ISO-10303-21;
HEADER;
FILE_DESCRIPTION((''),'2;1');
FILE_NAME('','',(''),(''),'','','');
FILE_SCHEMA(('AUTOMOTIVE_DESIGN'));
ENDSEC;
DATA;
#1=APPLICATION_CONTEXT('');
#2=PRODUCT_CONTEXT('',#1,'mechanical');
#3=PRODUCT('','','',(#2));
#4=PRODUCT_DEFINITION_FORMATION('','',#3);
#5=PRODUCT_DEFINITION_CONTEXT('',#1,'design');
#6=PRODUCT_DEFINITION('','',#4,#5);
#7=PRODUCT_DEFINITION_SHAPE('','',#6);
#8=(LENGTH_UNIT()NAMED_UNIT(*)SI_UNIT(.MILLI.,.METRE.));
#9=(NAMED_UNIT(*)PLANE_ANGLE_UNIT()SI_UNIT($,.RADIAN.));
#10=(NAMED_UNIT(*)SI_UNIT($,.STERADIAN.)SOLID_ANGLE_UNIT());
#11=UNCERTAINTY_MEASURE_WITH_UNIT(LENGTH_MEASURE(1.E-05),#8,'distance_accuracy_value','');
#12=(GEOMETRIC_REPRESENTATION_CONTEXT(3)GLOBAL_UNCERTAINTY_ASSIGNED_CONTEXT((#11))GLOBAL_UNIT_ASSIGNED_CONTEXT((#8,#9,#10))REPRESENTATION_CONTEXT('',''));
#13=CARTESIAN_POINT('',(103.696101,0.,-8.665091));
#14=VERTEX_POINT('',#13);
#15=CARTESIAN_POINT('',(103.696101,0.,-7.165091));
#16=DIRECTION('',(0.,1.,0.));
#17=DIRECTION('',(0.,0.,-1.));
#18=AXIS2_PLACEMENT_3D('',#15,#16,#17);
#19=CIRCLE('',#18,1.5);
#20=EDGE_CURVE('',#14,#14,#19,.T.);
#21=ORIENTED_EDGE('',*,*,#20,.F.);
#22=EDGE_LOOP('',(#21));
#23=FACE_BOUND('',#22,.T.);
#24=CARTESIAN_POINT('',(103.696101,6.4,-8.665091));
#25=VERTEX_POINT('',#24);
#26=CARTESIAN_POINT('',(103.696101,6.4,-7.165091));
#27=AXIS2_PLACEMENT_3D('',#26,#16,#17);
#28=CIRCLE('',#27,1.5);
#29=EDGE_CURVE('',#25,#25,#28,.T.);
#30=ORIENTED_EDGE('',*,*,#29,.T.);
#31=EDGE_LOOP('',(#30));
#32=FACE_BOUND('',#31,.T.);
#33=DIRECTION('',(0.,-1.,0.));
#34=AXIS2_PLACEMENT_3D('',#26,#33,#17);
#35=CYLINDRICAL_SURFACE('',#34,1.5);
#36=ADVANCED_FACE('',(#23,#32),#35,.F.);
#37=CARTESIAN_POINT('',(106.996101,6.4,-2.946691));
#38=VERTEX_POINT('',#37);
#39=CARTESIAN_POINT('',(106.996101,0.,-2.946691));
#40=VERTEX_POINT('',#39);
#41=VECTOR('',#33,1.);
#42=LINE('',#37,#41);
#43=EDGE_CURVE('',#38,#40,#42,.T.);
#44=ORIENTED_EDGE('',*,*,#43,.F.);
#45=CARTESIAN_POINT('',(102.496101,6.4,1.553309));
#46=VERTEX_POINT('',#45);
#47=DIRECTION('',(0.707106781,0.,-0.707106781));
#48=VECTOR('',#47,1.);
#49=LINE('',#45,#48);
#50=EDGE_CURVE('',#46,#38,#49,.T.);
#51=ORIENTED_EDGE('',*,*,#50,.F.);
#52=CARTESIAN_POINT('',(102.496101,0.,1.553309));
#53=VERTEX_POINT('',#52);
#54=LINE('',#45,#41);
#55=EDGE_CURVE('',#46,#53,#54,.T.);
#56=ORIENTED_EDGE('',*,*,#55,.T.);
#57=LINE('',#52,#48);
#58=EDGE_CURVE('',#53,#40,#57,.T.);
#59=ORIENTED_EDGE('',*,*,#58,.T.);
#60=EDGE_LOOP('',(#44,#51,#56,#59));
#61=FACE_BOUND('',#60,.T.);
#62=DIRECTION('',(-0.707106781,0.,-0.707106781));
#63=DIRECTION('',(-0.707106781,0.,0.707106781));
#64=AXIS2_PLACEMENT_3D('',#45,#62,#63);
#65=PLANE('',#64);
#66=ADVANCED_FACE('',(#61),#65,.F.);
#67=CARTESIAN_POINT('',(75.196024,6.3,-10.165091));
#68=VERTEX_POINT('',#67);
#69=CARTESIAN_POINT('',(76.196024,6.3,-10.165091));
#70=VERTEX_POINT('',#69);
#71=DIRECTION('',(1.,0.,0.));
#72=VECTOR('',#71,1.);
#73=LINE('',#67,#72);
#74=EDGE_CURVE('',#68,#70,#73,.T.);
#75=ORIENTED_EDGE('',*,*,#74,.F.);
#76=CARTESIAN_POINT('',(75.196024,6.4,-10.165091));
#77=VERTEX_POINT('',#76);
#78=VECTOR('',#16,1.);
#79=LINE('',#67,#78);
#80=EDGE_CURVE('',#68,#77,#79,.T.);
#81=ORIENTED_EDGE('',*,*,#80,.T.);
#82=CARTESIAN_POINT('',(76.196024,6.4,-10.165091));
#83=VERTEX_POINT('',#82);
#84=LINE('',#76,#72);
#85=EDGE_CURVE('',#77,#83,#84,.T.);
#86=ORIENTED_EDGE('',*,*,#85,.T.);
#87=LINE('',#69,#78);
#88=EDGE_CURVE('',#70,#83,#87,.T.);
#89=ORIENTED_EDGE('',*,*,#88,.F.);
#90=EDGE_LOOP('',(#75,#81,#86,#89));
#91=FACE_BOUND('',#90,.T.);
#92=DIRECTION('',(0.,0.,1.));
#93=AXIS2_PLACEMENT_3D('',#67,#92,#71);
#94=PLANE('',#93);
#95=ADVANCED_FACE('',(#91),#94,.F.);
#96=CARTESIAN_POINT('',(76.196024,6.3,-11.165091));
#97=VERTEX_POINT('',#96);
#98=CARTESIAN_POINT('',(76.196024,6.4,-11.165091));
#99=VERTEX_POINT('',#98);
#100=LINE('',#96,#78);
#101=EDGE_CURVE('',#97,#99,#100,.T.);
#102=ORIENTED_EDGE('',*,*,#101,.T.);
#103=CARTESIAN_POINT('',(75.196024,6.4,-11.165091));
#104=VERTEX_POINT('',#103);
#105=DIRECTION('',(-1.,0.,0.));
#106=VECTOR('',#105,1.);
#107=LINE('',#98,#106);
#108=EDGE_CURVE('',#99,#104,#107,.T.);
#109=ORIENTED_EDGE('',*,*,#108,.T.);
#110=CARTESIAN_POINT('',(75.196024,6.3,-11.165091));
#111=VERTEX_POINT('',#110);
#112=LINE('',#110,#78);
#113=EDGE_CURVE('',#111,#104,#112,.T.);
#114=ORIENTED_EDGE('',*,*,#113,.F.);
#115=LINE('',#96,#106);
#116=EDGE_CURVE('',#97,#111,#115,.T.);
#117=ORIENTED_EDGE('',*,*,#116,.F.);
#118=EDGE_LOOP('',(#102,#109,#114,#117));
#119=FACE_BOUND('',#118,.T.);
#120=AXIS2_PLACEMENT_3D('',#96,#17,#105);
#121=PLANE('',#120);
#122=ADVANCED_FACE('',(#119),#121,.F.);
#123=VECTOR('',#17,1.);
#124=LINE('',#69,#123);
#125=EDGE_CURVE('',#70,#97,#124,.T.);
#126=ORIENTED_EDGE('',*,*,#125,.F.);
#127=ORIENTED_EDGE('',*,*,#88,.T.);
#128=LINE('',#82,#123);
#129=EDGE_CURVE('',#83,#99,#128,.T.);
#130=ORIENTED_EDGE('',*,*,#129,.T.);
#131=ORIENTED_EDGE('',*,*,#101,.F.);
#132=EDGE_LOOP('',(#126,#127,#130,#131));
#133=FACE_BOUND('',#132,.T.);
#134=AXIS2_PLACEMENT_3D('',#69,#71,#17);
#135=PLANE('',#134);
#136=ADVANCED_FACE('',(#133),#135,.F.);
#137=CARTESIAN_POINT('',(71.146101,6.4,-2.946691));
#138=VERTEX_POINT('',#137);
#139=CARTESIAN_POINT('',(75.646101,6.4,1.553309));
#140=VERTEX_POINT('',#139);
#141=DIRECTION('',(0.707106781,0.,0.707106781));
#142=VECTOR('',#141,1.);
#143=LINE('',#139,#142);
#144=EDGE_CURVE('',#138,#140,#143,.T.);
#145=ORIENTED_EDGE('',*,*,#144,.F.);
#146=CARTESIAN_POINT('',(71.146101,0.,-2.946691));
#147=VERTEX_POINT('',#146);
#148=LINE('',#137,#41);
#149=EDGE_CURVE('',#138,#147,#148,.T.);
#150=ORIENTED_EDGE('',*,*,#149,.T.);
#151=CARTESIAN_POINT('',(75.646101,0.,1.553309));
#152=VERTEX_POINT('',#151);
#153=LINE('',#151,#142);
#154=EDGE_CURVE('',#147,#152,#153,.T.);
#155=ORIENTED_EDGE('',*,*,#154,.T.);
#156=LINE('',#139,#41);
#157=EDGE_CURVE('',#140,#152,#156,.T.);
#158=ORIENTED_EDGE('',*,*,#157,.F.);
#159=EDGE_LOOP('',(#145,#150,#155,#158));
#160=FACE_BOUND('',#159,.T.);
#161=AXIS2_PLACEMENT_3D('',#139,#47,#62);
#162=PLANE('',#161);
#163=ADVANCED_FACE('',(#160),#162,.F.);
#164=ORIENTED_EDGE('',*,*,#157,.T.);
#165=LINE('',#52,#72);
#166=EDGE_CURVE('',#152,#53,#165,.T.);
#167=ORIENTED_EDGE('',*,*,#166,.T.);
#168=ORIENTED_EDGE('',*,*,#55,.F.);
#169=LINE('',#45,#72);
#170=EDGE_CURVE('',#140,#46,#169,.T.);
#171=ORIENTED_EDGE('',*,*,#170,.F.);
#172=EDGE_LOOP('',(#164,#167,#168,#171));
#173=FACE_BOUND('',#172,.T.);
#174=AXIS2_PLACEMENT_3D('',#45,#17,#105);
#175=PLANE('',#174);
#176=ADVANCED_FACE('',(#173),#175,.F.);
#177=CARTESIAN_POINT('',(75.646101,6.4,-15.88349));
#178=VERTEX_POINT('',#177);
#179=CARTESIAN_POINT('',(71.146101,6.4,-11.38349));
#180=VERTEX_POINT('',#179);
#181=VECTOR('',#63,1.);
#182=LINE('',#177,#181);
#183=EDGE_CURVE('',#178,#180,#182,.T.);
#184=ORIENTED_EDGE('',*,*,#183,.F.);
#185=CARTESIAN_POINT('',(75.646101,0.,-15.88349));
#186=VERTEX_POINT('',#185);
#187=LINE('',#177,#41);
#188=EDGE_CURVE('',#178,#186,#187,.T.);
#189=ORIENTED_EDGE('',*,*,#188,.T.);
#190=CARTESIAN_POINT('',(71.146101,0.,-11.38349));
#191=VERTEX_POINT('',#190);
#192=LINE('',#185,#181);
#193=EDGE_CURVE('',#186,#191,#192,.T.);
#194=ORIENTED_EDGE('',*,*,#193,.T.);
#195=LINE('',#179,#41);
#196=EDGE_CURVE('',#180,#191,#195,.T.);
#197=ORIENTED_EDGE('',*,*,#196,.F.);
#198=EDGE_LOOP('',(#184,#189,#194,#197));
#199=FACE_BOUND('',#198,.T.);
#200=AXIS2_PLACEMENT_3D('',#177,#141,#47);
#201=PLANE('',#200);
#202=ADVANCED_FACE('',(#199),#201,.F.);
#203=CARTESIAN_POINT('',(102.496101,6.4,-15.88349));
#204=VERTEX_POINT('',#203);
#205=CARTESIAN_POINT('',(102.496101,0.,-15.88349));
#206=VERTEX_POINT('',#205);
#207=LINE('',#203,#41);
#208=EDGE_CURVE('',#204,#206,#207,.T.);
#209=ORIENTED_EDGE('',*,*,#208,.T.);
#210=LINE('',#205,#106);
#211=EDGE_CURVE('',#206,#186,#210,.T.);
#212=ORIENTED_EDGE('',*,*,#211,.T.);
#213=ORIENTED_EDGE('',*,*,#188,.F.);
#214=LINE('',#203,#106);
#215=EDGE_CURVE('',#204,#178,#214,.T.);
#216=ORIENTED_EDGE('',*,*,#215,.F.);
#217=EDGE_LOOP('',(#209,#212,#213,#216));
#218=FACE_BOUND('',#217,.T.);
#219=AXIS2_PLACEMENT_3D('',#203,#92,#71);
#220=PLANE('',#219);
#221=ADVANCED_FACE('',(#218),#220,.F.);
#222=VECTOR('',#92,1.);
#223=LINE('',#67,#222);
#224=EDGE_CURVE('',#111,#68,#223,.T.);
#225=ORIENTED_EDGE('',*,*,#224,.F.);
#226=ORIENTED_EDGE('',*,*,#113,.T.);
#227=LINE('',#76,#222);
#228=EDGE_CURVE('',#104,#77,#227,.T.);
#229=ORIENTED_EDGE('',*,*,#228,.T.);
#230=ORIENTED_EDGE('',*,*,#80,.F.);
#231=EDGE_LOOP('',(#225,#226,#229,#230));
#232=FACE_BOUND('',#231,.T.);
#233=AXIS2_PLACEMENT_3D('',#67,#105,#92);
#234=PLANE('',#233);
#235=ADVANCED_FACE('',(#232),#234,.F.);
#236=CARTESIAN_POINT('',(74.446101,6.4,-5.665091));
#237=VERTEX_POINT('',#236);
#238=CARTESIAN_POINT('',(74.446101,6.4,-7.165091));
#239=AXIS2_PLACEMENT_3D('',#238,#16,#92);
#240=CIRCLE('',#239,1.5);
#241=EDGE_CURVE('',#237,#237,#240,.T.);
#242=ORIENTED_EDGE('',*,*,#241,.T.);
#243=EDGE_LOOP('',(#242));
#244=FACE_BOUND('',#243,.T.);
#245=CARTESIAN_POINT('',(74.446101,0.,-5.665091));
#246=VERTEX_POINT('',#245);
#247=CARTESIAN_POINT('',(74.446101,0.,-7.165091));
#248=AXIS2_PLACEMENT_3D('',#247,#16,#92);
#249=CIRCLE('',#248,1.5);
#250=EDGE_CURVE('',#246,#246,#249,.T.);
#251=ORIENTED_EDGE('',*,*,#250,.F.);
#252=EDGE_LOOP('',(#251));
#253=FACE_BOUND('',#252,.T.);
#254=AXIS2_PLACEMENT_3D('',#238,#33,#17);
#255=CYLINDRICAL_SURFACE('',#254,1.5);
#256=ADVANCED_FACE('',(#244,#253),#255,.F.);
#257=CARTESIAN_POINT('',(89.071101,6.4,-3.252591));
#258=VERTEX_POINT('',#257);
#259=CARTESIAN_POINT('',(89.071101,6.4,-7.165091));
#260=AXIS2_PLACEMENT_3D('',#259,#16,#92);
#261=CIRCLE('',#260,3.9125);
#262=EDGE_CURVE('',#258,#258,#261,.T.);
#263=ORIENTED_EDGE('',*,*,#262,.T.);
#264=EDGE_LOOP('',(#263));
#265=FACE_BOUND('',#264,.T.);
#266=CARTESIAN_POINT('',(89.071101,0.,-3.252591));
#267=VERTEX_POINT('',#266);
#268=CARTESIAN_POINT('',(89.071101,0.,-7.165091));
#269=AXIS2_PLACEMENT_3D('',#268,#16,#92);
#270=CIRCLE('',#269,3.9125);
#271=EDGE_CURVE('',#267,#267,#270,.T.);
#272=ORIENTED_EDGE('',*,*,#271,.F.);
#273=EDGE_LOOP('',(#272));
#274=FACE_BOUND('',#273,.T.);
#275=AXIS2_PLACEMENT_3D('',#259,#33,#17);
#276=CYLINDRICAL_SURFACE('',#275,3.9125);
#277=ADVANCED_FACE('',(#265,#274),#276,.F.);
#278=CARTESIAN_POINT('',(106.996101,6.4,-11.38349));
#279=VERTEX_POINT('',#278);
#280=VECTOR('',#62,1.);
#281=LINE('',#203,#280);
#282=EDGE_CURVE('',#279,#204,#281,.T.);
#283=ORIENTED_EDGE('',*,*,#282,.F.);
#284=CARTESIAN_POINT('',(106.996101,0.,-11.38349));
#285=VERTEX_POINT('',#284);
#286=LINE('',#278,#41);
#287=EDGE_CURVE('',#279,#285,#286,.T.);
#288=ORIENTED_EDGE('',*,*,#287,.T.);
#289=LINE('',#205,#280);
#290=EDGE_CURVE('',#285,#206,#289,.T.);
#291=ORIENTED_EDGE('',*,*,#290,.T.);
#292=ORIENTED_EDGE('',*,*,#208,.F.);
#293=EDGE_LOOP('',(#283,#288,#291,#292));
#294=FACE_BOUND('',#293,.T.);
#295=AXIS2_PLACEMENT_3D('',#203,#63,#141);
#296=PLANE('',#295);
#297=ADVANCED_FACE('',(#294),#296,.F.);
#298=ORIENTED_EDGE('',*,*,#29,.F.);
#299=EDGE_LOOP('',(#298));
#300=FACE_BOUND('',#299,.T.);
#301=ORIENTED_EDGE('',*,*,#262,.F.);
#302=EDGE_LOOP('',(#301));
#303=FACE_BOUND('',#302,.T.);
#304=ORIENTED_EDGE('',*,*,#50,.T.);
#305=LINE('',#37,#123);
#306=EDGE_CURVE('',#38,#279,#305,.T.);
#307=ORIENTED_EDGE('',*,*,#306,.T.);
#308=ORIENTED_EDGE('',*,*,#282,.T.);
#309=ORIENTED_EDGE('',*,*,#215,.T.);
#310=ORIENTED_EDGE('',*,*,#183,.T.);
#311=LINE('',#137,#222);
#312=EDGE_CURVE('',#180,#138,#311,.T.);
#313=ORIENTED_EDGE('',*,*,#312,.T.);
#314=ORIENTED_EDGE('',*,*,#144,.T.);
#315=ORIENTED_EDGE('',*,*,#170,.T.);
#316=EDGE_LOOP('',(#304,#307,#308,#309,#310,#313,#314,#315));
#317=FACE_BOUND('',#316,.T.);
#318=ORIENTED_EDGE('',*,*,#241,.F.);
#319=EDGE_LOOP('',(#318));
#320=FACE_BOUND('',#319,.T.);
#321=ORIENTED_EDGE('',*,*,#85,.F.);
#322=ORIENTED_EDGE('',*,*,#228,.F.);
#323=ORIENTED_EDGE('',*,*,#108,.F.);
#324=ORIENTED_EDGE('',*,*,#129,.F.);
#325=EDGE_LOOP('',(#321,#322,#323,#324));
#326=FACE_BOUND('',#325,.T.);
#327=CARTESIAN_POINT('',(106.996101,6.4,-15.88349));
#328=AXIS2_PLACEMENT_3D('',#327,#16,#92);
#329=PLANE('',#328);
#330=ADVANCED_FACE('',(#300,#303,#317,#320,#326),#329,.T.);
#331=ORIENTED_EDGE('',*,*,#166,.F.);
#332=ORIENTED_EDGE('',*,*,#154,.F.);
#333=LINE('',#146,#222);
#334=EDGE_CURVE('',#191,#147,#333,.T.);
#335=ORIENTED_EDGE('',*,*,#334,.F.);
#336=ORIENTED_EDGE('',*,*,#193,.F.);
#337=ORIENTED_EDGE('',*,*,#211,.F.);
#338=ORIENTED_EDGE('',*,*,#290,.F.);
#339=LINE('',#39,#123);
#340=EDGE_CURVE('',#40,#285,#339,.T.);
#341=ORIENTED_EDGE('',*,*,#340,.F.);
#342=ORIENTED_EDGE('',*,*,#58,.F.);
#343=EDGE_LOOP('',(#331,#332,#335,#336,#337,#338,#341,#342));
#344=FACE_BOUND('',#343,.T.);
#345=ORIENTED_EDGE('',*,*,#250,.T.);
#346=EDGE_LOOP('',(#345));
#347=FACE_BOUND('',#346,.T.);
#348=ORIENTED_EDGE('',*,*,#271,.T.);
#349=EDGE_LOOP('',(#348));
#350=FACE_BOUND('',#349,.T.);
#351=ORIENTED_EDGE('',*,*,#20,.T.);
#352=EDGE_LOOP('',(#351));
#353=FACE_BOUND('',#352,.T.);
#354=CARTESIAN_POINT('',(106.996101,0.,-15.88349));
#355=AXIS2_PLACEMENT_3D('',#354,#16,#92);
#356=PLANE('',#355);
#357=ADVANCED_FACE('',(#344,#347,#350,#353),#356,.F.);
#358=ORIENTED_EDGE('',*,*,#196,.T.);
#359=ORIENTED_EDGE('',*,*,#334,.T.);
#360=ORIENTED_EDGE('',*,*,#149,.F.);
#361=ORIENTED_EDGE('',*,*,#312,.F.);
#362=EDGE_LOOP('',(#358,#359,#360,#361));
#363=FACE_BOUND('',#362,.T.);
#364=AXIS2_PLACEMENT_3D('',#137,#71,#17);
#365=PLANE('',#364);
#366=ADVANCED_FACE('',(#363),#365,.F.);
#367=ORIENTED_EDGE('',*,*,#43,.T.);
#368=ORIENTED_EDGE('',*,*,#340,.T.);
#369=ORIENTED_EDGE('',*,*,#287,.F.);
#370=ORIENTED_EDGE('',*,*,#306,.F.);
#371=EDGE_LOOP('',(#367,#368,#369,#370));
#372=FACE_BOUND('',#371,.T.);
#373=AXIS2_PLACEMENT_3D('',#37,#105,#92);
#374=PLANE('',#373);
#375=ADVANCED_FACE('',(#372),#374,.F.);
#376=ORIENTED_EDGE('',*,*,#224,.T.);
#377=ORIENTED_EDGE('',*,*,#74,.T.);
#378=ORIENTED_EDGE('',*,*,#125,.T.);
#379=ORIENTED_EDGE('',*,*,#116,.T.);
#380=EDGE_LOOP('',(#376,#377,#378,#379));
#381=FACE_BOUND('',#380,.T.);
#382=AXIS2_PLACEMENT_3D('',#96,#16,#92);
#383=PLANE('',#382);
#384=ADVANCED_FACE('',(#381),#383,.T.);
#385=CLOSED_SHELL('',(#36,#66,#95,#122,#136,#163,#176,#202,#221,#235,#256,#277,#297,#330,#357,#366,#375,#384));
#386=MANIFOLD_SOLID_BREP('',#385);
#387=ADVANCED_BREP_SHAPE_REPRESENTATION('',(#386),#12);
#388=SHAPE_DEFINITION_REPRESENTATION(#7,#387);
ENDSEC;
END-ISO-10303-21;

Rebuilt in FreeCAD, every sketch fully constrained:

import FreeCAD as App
import Part
import Sketcher


def add_polygon(sketch, points):
    """Adds a closed chain of lines whose ends are joined by coincident constraints."""
    first, n = sketch.GeometryCount, len(points)
    for a, b in zip(points, points[1:] + points[:1]):
        sketch.addGeometry(Part.LineSegment(App.Vector(*a, 0), App.Vector(*b, 0)), False)
    for i in range(n):
        sketch.addConstraint(Sketcher.Constraint("Coincident", first + i, 2, first + (i + 1) % n, 1))

doc = App.newDocument("Part")
body = doc.addObject("PartDesign::Body", "Body")

sketch1 = body.newObject("Sketcher::SketchObject", "Sketch")
sketch1.AttachmentSupport = (doc.getObject("XZ_Plane"), [""])
sketch1.MapMode = "FlatFace"
add_polygon(sketch1, [(107, -11.4), (102.5, -15.9), (75.6, -15.9), (71.1, -11.4), (71.1, -2.9), (75.6, 1.6), (102.5, 1.6), (107, -2.9)])
sketch1.addGeometry(Part.Circle(App.Vector(103.7, -7.2, 0), App.Vector(0, 0, 1), 1.5), False)
sketch1.addGeometry(Part.Circle(App.Vector(89.1, -7.2, 0), App.Vector(0, 0, 1), 3.9), False)
sketch1.addGeometry(Part.Circle(App.Vector(74.4, -7.2, 0), App.Vector(0, 0, 1), 1.5), False)
sketch1.addConstraint(Sketcher.Constraint("Horizontal", 1))
sketch1.addConstraint(Sketcher.Constraint("Vertical", 3))
sketch1.addConstraint(Sketcher.Constraint("Horizontal", 5))
sketch1.addConstraint(Sketcher.Constraint("Vertical", 7))
sketch1.addConstraint(Sketcher.Constraint("Equal", 8, 10))
sketch1.addConstraint(Sketcher.Constraint("Perpendicular", 0, 2))
sketch1.addConstraint(Sketcher.Constraint("Perpendicular", 2, 4))
sketch1.addConstraint(Sketcher.Constraint("Perpendicular", 4, 6))
sketch1.addConstraint(Sketcher.Constraint("Horizontal", 8, 3, 9, 3))
sketch1.addConstraint(Sketcher.Constraint("Horizontal", 9, 3, 10, 3))
sketch1.addConstraint(Sketcher.Constraint("Horizontal", 3, 2, 6, 2))
sketch1.addConstraint(Sketcher.Constraint("Horizontal", 2, 2, 7, 2))
sketch1.addConstraint(Sketcher.Constraint("Vertical", 1, 2, 4, 2))
sketch1.addConstraint(Sketcher.Constraint("Vertical", 0, 2, 5, 2))
sketch1.addConstraint(Sketcher.Constraint("Diameter", 8, 3.0))
sketch1.addConstraint(Sketcher.Constraint("Diameter", 9, 7.825))
sketch1.addConstraint(Sketcher.Constraint("DistanceX", 1, 2, 1, 1, 26.85))
sketch1.addConstraint(Sketcher.Constraint("DistanceX", 0, 2, 8, 3, 1.2))
sketch1.addConstraint(Sketcher.Constraint("DistanceX", 10, 3, 1, 2, 1.2))
sketch1.addConstraint(Sketcher.Constraint("DistanceX", 2, 2, 10, 3, 3.3))
sketch1.addConstraint(Sketcher.Constraint("DistanceY", 3, 1, 3, 2, 8.436798))
sketch1.addConstraint(Sketcher.Constraint("DistanceX", 9, 3, 8, 3, 14.625))
sketch1.addConstraint(Sketcher.Constraint("DistanceX", -1, 1, 8, 3, 103.696101))
sketch1.addConstraint(Sketcher.Constraint("DistanceY", 0, 2, 8, 3, 8.718399))
sketch1.addConstraint(Sketcher.Constraint("DistanceY", 8, 3, -1, 1, 7.165091))
pad1 = body.newObject("PartDesign::Pad", "Pad")
pad1.Profile = sketch1
pad1.Length = 6.4
pad1.Reversed = True

sketch2 = body.newObject("Sketcher::SketchObject", "Sketch001")
sketch2.AttachmentSupport = (doc.getObject("XZ_Plane"), [""])
sketch2.MapMode = "FlatFace"
sketch2.AttachmentOffset = App.Placement(App.Vector(0, 0, -6.4), App.Rotation())
add_polygon(sketch2, [(75.2, -11.2), (75.2, -10.2), (76.2, -10.2), (76.2, -11.2)])
sketch2.addConstraint(Sketcher.Constraint("Vertical", 0))
sketch2.addConstraint(Sketcher.Constraint("Horizontal", 1))
sketch2.addConstraint(Sketcher.Constraint("Vertical", 2))
sketch2.addConstraint(Sketcher.Constraint("Horizontal", 3))
sketch2.addConstraint(Sketcher.Constraint("Equal", 3, 0))
sketch2.addConstraint(Sketcher.Constraint("DistanceX", 1, 1, 1, 2, 1.0))
sketch2.addConstraint(Sketcher.Constraint("DistanceY", 0, 2, -1, 1, 10.165091))
sketch2.addConstraint(Sketcher.Constraint("DistanceX", -1, 1, 0, 2, 75.196024))
pocket1 = body.newObject("PartDesign::Pocket", "Pocket")
pocket1.Profile = sketch2
pocket1.Length = 0.1
pocket1.Reversed = True

doc.recompute()
